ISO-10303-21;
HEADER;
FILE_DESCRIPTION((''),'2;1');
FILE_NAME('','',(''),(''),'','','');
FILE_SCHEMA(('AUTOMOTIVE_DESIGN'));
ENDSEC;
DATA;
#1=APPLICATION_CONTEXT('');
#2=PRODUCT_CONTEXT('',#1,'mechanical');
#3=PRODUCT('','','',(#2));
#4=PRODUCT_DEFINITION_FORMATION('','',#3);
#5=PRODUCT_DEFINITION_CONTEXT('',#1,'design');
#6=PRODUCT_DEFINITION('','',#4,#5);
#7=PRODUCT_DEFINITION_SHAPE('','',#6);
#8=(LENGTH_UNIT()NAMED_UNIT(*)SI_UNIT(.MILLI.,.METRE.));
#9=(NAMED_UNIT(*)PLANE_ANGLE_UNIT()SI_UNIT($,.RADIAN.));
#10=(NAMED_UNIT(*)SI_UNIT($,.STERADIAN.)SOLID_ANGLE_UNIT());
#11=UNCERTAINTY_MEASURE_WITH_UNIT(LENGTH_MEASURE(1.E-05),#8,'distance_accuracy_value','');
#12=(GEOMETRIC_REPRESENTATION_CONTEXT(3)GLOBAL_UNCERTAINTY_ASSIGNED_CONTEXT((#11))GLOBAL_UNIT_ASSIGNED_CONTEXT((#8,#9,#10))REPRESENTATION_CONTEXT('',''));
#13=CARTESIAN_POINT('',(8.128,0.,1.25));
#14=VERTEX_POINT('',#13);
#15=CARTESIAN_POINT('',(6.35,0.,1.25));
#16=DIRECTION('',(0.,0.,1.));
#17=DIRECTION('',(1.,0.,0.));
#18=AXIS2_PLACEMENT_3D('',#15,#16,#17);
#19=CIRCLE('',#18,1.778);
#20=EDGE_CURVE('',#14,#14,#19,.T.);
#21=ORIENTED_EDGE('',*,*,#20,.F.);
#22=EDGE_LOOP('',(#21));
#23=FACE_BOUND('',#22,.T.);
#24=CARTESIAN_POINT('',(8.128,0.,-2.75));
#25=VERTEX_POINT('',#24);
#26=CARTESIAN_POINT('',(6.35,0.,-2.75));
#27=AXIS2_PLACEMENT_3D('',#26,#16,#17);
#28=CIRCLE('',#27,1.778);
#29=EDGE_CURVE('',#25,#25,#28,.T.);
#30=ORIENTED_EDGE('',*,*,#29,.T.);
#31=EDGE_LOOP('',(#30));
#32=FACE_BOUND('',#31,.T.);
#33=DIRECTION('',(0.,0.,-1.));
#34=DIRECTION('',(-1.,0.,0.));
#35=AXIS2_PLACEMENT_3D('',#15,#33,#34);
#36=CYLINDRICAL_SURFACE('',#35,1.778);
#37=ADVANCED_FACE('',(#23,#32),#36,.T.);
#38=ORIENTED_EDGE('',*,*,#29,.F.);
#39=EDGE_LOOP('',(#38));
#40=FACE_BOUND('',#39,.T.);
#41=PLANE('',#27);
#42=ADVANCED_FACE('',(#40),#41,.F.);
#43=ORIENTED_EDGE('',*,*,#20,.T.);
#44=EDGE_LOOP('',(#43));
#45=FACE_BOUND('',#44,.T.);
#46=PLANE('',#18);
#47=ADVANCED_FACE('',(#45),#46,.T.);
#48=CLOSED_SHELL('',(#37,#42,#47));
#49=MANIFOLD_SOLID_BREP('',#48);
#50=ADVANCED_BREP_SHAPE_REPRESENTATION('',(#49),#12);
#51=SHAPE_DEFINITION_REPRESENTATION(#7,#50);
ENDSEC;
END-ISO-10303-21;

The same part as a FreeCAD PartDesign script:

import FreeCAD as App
import Part
import Sketcher
Q = App.Units.Quantity

doc = App.newDocument("Part")
body = doc.addObject("PartDesign::Body", "Body")

# Sketch on XY plane
sketch1 = body.newObject("Sketcher::SketchObject", "Sketch")
sketch1.AttachmentSupport = (doc.getObject("XY_Plane"), [""])
sketch1.MapMode = "FlatFace"
sketch1.addGeometry(Part.Circle(App.Vector(6.35, 0, 0), App.Vector(0, 0, 1), 1.778), False)
sketch1.addConstraint(Sketcher.Constraint("PointOnObject", 0, 3, -1))
sketch1.addConstraint(Sketcher.Constraint("Diameter", 0, Q("0.14 in")))
sketch1.addConstraint(Sketcher.Constraint("DistanceX", -1, 1, 0, 3, Q("0.25 in")))
pad1 = body.newObject("PartDesign::Pad", "Pad")
pad1.Profile = sketch1
pad1.Type = "TwoLengths"
pad1.Length = 1.25
pad1.Length2 = 2.75

doc.recompute()
